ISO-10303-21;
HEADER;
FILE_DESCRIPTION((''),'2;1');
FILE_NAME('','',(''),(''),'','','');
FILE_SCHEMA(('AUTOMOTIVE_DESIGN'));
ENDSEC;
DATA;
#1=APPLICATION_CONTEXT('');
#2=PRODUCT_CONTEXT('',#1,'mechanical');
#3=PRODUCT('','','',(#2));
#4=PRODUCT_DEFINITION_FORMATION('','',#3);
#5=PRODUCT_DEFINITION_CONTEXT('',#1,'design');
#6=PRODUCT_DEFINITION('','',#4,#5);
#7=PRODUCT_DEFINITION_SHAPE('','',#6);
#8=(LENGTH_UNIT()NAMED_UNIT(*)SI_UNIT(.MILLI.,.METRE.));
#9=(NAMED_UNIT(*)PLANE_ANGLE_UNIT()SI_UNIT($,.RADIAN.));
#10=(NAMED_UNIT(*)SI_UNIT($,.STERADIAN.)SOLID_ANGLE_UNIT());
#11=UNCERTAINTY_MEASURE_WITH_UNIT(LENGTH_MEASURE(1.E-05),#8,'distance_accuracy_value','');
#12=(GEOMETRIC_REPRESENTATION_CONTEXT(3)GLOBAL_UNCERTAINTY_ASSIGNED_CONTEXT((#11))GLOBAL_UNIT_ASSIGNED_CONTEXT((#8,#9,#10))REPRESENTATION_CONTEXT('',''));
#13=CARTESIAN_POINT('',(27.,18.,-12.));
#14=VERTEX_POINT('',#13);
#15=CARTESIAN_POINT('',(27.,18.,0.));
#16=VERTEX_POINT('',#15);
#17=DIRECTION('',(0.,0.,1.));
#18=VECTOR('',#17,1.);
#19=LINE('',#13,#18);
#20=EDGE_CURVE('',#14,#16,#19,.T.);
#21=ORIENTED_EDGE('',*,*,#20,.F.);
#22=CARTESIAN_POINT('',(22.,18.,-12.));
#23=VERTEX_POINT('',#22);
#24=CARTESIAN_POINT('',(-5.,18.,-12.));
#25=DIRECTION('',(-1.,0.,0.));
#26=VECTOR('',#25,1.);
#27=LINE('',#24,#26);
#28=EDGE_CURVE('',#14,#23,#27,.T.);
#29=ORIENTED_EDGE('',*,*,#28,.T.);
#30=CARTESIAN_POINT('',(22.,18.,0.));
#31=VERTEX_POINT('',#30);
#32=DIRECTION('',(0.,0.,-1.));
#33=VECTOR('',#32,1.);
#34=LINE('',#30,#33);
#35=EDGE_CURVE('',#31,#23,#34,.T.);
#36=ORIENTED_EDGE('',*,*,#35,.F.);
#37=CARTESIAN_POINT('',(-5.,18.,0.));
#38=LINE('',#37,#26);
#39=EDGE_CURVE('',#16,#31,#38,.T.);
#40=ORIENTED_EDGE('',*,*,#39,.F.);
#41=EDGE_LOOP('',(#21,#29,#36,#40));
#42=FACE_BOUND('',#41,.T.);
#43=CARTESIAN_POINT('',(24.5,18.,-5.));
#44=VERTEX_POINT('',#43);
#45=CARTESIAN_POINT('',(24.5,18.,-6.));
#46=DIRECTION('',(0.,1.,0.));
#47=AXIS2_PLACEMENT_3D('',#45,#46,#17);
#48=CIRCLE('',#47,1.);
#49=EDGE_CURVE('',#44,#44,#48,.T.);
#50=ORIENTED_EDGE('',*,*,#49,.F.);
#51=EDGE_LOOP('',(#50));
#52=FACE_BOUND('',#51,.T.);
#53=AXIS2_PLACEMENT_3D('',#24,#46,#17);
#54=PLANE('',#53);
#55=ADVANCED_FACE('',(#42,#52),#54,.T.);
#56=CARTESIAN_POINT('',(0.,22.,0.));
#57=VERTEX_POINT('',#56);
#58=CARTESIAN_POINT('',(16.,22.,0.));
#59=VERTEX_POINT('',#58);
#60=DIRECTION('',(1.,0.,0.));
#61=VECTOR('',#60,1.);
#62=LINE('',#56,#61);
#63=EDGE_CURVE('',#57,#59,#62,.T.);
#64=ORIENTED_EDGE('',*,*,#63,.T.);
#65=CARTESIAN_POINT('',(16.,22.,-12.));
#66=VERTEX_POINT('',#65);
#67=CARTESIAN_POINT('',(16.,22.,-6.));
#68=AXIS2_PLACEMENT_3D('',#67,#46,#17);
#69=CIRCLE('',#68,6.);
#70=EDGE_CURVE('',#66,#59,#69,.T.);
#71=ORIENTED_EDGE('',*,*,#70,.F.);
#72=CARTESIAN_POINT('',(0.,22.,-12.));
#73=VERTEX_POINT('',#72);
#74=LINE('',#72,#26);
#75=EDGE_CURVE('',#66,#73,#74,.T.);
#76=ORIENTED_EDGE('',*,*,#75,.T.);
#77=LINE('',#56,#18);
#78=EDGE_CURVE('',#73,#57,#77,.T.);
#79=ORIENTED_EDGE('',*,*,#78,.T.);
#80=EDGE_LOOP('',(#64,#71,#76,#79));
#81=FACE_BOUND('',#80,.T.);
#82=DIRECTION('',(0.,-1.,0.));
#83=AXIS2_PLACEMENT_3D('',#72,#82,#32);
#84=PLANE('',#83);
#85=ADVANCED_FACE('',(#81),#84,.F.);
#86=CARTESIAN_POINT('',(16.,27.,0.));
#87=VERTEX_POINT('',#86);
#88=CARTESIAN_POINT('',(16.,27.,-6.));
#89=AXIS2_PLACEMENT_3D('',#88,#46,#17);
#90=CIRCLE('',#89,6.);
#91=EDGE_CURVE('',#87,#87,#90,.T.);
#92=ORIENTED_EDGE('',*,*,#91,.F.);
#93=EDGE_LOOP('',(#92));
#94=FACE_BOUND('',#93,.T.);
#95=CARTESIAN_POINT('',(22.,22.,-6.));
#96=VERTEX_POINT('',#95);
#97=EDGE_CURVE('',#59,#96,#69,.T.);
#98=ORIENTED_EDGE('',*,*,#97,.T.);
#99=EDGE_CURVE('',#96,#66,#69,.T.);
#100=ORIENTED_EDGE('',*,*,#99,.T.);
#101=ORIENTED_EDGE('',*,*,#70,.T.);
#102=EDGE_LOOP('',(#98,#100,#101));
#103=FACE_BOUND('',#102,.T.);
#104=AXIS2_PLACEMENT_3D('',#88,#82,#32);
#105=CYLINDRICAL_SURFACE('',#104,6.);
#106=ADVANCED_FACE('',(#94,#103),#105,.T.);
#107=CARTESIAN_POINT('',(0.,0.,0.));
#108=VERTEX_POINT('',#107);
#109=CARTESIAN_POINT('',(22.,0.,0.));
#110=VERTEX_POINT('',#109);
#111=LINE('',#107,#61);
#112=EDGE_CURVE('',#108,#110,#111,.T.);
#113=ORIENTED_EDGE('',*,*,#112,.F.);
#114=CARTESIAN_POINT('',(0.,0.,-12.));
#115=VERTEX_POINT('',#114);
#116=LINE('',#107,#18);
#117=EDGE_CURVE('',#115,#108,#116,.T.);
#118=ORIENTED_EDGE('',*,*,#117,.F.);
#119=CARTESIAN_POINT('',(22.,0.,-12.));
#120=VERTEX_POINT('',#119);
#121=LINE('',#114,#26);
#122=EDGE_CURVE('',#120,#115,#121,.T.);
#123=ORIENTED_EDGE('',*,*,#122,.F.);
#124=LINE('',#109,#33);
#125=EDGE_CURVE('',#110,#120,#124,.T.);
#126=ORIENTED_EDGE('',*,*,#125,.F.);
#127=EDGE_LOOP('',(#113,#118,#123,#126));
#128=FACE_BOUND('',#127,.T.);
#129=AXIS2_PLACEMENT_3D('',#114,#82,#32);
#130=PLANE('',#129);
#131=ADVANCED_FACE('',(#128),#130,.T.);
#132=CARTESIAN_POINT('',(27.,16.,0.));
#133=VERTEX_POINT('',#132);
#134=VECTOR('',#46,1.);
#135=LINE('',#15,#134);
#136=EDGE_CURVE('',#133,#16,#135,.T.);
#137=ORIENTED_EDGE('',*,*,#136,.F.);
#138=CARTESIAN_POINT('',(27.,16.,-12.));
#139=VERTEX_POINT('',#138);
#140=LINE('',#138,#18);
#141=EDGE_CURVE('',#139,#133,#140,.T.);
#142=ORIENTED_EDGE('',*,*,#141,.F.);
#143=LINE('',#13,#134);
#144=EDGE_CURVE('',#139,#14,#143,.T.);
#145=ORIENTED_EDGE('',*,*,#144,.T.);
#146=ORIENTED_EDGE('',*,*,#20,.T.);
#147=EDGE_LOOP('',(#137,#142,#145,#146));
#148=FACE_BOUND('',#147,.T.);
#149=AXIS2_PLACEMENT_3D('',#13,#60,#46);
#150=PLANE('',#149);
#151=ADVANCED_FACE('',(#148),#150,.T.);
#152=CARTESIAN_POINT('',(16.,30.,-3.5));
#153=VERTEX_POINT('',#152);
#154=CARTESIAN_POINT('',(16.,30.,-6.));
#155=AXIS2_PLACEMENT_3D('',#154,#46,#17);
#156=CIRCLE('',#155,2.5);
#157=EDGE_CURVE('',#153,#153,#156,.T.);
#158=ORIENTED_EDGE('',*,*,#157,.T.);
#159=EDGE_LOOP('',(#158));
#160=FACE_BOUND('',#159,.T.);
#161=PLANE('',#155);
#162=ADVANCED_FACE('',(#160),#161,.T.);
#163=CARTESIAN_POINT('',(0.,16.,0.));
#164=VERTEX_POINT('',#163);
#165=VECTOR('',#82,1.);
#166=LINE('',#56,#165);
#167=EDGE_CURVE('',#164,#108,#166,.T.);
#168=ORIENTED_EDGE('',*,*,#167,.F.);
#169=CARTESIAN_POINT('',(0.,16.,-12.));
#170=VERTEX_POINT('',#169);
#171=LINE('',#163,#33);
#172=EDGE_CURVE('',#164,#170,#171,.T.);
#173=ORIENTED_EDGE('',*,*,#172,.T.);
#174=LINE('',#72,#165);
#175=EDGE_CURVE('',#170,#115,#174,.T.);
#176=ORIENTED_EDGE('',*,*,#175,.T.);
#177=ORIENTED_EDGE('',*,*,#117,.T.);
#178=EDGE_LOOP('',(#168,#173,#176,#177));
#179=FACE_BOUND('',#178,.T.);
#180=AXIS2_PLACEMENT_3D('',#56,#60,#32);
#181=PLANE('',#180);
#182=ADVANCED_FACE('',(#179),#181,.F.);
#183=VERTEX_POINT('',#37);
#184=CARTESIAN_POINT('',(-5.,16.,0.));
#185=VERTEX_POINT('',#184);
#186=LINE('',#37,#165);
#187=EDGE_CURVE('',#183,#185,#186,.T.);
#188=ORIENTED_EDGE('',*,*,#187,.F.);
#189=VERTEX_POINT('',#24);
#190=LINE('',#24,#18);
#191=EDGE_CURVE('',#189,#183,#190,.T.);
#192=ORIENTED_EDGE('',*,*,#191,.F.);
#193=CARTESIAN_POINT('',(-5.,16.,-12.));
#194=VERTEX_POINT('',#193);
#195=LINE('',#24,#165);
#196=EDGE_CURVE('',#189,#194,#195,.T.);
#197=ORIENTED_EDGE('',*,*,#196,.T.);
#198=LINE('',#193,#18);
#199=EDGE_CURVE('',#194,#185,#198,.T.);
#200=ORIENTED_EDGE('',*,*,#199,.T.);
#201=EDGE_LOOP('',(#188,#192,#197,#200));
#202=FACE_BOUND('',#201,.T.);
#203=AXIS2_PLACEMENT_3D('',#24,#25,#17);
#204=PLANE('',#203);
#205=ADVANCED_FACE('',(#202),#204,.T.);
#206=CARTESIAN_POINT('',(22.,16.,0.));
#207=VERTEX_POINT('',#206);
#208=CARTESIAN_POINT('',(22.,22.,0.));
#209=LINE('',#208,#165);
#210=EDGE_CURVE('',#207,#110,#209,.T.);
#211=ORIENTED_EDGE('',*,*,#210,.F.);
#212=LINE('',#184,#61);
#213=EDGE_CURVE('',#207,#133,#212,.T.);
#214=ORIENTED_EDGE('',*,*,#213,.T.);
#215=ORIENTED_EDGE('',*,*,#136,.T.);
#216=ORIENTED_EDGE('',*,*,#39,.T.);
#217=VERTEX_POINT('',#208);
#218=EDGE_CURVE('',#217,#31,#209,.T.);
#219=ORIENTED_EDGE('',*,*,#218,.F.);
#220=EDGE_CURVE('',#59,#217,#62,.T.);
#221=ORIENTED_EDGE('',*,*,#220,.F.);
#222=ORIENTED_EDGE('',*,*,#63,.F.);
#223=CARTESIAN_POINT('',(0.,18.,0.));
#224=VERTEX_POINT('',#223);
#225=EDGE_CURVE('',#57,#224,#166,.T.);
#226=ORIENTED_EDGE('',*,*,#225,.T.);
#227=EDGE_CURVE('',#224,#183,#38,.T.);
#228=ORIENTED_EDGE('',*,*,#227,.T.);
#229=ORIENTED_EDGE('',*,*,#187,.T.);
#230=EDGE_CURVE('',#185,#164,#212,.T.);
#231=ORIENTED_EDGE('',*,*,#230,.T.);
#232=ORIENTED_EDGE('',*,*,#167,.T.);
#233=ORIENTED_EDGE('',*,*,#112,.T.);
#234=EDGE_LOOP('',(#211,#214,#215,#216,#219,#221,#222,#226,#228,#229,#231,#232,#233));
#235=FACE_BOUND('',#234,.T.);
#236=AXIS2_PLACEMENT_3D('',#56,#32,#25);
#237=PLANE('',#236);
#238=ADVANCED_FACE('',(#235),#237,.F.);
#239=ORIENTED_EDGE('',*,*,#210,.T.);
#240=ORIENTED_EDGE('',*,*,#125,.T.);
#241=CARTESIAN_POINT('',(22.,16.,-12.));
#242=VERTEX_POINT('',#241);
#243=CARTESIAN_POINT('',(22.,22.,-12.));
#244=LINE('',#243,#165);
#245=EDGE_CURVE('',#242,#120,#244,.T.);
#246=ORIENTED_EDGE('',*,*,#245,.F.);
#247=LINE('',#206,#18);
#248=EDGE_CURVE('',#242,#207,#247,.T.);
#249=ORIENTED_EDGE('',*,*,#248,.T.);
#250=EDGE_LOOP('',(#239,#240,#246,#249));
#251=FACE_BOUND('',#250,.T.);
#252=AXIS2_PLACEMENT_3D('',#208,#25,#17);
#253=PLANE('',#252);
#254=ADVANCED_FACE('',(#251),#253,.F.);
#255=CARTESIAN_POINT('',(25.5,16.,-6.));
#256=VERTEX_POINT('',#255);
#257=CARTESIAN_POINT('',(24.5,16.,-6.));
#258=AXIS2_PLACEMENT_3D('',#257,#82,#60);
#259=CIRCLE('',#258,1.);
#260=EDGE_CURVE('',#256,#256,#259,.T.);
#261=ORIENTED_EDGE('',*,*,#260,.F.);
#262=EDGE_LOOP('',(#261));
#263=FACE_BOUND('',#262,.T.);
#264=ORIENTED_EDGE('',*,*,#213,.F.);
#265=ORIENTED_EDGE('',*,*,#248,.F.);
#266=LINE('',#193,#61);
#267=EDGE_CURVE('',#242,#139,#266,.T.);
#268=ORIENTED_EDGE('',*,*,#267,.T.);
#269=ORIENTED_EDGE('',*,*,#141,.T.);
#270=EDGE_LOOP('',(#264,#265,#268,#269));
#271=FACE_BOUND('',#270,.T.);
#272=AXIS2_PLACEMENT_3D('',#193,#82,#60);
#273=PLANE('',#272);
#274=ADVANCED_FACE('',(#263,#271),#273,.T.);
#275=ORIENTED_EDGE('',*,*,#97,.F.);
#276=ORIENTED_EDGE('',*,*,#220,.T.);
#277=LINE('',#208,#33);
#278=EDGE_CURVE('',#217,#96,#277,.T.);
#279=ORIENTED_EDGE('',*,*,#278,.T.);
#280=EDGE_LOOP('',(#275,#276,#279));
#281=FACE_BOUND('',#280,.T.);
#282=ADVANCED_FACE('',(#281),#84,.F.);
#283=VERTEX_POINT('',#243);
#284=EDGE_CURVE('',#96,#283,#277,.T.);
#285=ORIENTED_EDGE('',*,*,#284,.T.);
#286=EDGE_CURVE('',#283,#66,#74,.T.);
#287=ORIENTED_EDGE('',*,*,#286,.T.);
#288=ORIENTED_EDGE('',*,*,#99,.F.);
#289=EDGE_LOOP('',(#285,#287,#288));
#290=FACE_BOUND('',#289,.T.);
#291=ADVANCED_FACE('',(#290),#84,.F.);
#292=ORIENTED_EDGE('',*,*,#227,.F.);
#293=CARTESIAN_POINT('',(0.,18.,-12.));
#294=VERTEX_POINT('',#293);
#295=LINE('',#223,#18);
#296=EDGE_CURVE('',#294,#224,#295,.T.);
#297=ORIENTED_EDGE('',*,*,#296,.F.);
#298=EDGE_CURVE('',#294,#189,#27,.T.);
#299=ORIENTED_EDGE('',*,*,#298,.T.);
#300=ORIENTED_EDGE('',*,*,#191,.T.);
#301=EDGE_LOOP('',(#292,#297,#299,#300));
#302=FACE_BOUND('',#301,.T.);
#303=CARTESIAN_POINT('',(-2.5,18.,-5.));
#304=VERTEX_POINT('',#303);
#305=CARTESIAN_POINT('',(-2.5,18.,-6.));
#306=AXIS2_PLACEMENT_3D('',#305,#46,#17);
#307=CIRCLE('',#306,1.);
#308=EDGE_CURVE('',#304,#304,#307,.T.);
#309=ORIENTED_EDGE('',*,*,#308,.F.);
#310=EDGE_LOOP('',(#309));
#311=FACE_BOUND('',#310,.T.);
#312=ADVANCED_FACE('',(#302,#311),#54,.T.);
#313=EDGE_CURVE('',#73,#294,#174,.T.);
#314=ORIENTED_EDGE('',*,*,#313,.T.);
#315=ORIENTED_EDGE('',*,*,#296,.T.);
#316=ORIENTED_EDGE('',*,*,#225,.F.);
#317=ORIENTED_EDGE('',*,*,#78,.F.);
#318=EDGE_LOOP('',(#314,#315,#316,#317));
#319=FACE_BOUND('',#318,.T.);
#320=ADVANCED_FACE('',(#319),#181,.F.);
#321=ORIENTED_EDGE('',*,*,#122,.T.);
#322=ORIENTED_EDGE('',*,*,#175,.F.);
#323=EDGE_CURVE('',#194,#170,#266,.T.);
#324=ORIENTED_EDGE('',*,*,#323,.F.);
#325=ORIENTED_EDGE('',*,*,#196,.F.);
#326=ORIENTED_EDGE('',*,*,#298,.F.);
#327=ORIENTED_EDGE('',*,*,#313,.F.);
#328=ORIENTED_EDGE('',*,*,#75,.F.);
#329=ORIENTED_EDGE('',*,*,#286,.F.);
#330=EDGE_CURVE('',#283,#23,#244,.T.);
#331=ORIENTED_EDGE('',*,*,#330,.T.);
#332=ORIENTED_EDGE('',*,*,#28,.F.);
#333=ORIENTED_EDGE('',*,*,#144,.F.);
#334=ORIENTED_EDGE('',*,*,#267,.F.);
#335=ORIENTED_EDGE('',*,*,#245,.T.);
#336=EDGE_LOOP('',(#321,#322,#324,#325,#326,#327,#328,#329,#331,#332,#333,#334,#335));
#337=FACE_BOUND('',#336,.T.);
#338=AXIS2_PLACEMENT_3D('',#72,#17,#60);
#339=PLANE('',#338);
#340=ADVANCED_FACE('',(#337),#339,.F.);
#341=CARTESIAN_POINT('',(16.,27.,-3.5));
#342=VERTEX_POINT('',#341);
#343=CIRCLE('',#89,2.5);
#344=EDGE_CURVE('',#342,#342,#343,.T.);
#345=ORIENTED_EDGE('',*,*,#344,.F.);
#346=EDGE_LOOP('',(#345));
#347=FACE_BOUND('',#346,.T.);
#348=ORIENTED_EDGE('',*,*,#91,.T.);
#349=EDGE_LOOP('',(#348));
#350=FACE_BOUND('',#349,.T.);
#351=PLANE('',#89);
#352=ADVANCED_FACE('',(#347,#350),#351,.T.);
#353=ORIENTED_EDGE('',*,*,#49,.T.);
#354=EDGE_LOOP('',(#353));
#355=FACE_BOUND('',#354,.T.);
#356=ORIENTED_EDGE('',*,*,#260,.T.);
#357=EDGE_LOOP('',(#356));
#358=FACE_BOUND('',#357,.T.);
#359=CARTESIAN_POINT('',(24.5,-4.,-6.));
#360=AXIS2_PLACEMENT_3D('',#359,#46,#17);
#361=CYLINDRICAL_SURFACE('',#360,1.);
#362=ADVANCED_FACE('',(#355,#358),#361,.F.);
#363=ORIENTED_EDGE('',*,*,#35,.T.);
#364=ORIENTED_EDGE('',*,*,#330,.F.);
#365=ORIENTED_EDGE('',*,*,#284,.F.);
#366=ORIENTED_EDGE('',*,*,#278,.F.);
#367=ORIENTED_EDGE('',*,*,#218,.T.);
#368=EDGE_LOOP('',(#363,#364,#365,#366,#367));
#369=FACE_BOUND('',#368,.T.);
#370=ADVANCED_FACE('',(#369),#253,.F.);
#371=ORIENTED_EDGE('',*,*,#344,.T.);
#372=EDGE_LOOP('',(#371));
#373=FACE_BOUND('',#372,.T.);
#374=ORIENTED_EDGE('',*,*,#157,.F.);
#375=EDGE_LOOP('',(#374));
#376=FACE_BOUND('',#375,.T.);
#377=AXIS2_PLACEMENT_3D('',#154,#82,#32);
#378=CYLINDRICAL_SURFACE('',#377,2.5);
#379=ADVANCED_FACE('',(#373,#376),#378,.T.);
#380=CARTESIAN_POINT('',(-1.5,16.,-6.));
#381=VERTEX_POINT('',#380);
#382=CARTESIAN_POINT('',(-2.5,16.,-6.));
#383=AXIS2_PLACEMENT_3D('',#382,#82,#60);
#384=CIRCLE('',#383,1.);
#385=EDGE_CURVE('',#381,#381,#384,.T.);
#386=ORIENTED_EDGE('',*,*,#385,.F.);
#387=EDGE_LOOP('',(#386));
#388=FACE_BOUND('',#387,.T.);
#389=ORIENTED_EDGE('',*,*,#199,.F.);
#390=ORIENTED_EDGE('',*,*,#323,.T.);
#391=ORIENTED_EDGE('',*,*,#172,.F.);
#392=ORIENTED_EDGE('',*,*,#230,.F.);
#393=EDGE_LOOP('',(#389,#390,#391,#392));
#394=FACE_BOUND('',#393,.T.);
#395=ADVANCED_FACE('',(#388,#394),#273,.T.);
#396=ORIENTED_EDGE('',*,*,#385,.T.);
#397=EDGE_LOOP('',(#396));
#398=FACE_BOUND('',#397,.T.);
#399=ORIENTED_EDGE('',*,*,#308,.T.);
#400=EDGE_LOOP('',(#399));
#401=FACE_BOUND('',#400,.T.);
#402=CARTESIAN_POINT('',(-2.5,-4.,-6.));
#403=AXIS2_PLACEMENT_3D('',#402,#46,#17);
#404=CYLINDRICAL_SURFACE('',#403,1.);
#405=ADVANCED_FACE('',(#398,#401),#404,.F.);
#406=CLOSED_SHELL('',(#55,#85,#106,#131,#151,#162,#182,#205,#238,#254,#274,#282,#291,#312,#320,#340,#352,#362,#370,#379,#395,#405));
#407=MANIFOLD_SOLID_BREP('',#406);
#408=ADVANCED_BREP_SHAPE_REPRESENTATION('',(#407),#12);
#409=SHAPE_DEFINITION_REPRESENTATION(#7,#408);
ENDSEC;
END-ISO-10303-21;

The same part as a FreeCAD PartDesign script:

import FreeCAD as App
import Part
import Sketcher

V = App.Vector

doc = App.newDocument("Part")
body = doc.addObject("PartDesign::Body", "Body")

# Sketch on XZ plane
sketch1 = doc.addObject("Sketcher::SketchObject", "Sketch")
body.addObject(sketch1)
sketch1.AttachmentSupport = (doc.XZ_Plane, [""])
sketch1.MapMode = "FlatFace"
sketch1.addGeometry([
    Part.LineSegment(V(0, -12, 0), V(0, 0, 0)),
    Part.LineSegment(V(0, 0, 0), V(22, 0, 0)),
    Part.LineSegment(V(22, 0, 0), V(22, -12, 0)),
    Part.LineSegment(V(22, -12, 0), V(0, -12, 0)),
], False)
sketch1.addConstraint([
    Sketcher.Constraint("Coincident", 0, 2, 1, 1),
    Sketcher.Constraint("Coincident", 1, 2, 2, 1),
    Sketcher.Constraint("Coincident", 2, 2, 3, 1),
    Sketcher.Constraint("Coincident", 3, 2, 0, 1),
    Sketcher.Constraint("Vertical", 0),
    Sketcher.Constraint("Horizontal", 1),
    Sketcher.Constraint("Vertical", 2),
    Sketcher.Constraint("Horizontal", 3),
    Sketcher.Constraint("Coincident", 0, 2, -1, 1),
    Sketcher.Constraint("DistanceX", 1, 1, 1, 2, 22.0),
    Sketcher.Constraint("DistanceY", 0, 1, 0, 2, 12.0),
])
pad1 = doc.addObject("PartDesign::Pad", "Pad")
body.addObject(pad1)
pad1.Profile = sketch1
pad1.Length = 22
pad1.Reversed = True

# Sketch on XY plane
sketch2 = doc.addObject("Sketcher::SketchObject", "Sketch001")
body.addObject(sketch2)
sketch2.AttachmentSupport = (doc.XY_Plane, [""])
sketch2.MapMode = "FlatFace"
sketch2.addGeometry([
    Part.LineSegment(V(-5, 18, 0), V(-5, 16, 0)),
    Part.LineSegment(V(-5, 16, 0), V(27, 16, 0)),
    Part.LineSegment(V(27, 16, 0), V(27, 18, 0)),
    Part.LineSegment(V(27, 18, 0), V(-5, 18, 0)),
], False)
sketch2.addConstraint([
    Sketcher.Constraint("Coincident", 0, 2, 1, 1),
    Sketcher.Constraint("Coincident", 1, 2, 2, 1),
    Sketcher.Constraint("Coincident", 2, 2, 3, 1),
    Sketcher.Constraint("Coincident", 3, 2, 0, 1),
    Sketcher.Constraint("Vertical", 0),
    Sketcher.Constraint("Horizontal", 1),
    Sketcher.Constraint("Vertical", 2),
    Sketcher.Constraint("Horizontal", 3),
    Sketcher.Constraint("DistanceX", 1, 1, 1, 2, 32.0),
    Sketcher.Constraint("DistanceY", 0, 2, 0, 1, 2.0),
    Sketcher.Constraint("DistanceX", 0, 2, -1, 1, 5.0),
    Sketcher.Constraint("DistanceY", -1, 1, 0, 2, 16.0),
])
pad2 = doc.addObject("PartDesign::Pad", "Pad001")
body.addObject(pad2)
pad2.Profile = sketch2
pad2.Type = "UpToLast"
pad2.Reversed = True

# Sketch on XZ plane
sketch3 = doc.addObject("Sketcher::SketchObject", "Sketch002")
body.addObject(sketch3)
sketch3.AttachmentSupport = (doc.XZ_Plane, [""])
sketch3.MapMode = "FlatFace"
sketch3.AttachmentOffset = App.Placement(V(0, 0, -18), App.Rotation())
sketch3.addGeometry([
    Part.Circle(V(-2.5, -6, 0), V(0, 0, 1), 1),
    Part.Circle(V(24.5, -6, 0), V(0, 0, 1), 1),
], False)
sketch3.addConstraint([
    Sketcher.Constraint("Equal", 0, 1),
    Sketcher.Constraint("Horizontal", 0, 3, 1, 3),
    Sketcher.Constraint("Diameter", 0, 2.0),
    Sketcher.Constraint("DistanceY", 0, 3, -1, 1, 6.0),
    Sketcher.Constraint("DistanceX", 0, 3, 1, 3, 27.0),
    Sketcher.Constraint("DistanceX", 0, 3, -1, 1, 2.5),
])
pocket1 = doc.addObject("PartDesign::Pocket", "Pocket")
body.addObject(pocket1)
pocket1.Profile = sketch3
pocket1.Length = 22
pocket1.Reversed = True

# Sketch on XZ plane
sketch4 = doc.addObject("Sketcher::SketchObject", "Sketch003")
body.addObject(sketch4)
sketch4.AttachmentSupport = (doc.XZ_Plane, [""])
sketch4.MapMode = "FlatFace"
sketch4.AttachmentOffset = App.Placement(V(0, 0, -22), App.Rotation())
sketch4.addGeometry(Part.Circle(V(16, -6, 0), V(0, 0, 1), 6), False)
sketch4.addConstraint([
    Sketcher.Constraint("Diameter", 0, 12.0),
    Sketcher.Constraint("DistanceX", -1, 1, 0, 3, 16.0),
    Sketcher.Constraint("DistanceY", 0, 3, -1, 1, 6.0),
])
pad3 = doc.addObject("PartDesign::Pad", "Pad002")
body.addObject(pad3)
pad3.Profile = sketch4
pad3.Length = 5
pad3.Reversed = True

# Sketch on XZ plane
sketch5 = doc.addObject("Sketcher::SketchObject", "Sketch004")
body.addObject(sketch5)
sketch5.AttachmentSupport = (doc.XZ_Plane, [""])
sketch5.MapMode = "FlatFace"
sketch5.AttachmentOffset = App.Placement(V(0, 0, -27), App.Rotation())
sketch5.addGeometry(Part.Circle(V(16, -6, 0), V(0, 0, 1), 2.5), False)
sketch5.addConstraint([
    Sketcher.Constraint("Diameter", 0, 5.0),
    Sketcher.Constraint("DistanceX", -1, 1, 0, 3, 16.0),
    Sketcher.Constraint("DistanceY", 0, 3, -1, 1, 6.0),
])
pad4 = doc.addObject("PartDesign::Pad", "Pad003")
body.addObject(pad4)
pad4.Profile = sketch5
pad4.Length = 3
pad4.Reversed = True

doc.recompute()
